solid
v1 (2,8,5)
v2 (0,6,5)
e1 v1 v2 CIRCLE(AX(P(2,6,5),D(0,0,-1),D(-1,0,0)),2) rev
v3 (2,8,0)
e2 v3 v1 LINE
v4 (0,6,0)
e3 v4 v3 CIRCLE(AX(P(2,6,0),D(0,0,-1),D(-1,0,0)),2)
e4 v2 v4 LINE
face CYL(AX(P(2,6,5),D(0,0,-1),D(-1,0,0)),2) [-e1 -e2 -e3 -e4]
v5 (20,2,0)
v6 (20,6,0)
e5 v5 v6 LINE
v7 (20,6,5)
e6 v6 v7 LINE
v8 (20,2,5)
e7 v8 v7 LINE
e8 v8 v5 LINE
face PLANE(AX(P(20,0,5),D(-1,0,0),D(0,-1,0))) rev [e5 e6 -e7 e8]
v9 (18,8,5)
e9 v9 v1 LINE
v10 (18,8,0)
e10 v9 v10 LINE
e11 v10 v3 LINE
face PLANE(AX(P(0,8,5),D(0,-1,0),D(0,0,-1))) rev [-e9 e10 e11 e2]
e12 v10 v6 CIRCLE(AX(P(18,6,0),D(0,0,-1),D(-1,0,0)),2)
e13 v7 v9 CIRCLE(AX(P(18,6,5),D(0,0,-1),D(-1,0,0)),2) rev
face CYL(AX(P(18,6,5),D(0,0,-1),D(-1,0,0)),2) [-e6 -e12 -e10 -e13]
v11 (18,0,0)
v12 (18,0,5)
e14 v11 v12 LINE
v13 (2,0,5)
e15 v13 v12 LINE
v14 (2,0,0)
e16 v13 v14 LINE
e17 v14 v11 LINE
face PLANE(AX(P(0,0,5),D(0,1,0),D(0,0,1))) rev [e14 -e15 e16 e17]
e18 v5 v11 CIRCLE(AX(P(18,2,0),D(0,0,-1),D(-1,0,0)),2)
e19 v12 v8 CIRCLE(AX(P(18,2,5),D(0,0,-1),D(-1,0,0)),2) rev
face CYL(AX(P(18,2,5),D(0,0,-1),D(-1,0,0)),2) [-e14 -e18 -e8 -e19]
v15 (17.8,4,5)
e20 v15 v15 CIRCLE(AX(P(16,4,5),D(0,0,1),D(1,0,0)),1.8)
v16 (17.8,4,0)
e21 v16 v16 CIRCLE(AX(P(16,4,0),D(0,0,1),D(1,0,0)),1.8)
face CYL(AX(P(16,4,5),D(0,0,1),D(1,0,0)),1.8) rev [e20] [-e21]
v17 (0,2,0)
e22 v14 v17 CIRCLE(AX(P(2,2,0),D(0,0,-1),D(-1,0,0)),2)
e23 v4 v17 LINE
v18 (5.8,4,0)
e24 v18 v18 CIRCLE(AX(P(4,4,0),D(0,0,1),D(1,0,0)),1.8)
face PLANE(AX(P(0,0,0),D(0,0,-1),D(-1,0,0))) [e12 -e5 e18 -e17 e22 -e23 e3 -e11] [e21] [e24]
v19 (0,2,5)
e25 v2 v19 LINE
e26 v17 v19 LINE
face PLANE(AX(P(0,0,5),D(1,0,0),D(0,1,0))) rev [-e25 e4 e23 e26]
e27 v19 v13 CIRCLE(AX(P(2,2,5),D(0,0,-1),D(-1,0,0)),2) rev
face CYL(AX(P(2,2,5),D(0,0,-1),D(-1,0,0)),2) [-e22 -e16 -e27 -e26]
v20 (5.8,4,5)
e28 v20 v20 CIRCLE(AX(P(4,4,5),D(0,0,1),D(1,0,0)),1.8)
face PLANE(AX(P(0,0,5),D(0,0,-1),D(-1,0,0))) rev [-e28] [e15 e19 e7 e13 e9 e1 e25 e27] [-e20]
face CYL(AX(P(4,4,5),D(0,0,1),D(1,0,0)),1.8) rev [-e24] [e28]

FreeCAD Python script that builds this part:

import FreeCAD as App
import Part
import Sketcher
from FreeCAD import Vector


def edges_at(feature, points):
    """Names of the edges that pass closest to the given points."""
    edges = feature.Shape.Edges
    near = lambda p: min(range(len(edges)), key=lambda i: edges[i].distToShape(Part.Vertex(*p))[0])
    return sorted({f"Edge{near(p) + 1}" for p in points})

doc = App.newDocument("Part")
body = doc.addObject("PartDesign::Body", "Body")

# Sketch on XY plane
sketch1 = body.newObject("Sketcher::SketchObject", "Sketch")
sketch1.AttachmentSupport = (doc.getObject("XY_Plane"), [""])
sketch1.MapMode = "FlatFace"
sketch1.addGeometry([
    Part.LineSegment(Vector(0, 8, 0), Vector(0, 0, 0)),
    Part.LineSegment(Vector(0, 0, 0), Vector(20, 0, 0)),
    Part.LineSegment(Vector(20, 0, 0), Vector(20, 8, 0)),
    Part.LineSegment(Vector(20, 8, 0), Vector(0, 8, 0)),
], False)
sketch1.addConstraint([
    Sketcher.Constraint("Coincident", 0, 2, 1, 1),
    Sketcher.Constraint("Coincident", 1, 2, 2, 1),
    Sketcher.Constraint("Coincident", 2, 2, 3, 1),
    Sketcher.Constraint("Coincident", 3, 2, 0, 1),
    Sketcher.Constraint("Vertical", 0),
    Sketcher.Constraint("Horizontal", 1),
    Sketcher.Constraint("Vertical", 2),
    Sketcher.Constraint("Horizontal", 3),
    Sketcher.Constraint("Coincident", 0, 2, -1, 1),
    Sketcher.Constraint("DistanceX", 1, 1, 1, 2, 20.0),
    Sketcher.Constraint("DistanceY", 0, 2, 0, 1, 8.0),
])
pad1 = body.newObject("PartDesign::Pad", "Pad")
pad1.Profile = sketch1
pad1.Length = 5

# Sketch on XY plane
sketch2 = body.newObject("Sketcher::SketchObject", "Sketch001")
sketch2.AttachmentSupport = (doc.getObject("XY_Plane"), [""])
sketch2.MapMode = "FlatFace"
sketch2.AttachmentOffset = App.Placement(Vector(0, 0, 5), App.Rotation())
sketch2.addGeometry([
    Part.Circle(Vector(4, 4, 0), Vector(0, 0, 1), 1.8),
    Part.Circle(Vector(16, 4, 0), Vector(0, 0, 1), 1.8),
], False)
sketch2.addConstraint([
    Sketcher.Constraint("Equal", 0, 1),
    Sketcher.Constraint("Horizontal", 0, 3, 1, 3),
    Sketcher.Constraint("Diameter", 0, 3.6),
    Sketcher.Constraint("DistanceX", -1, 1, 0, 3, 4.0),
    Sketcher.Constraint("DistanceY", -1, 1, 0, 3, 4.0),
    Sketcher.Constraint("DistanceX", -1, 1, 1, 3, 16.0),
])
doc.recompute()
hole = body.newObject("PartDesign::Hole", "Hole")
hole.Profile = sketch2
hole.ThreadType = "None"
hole.Diameter = 3.6
hole.DepthType = "ThroughAll"
doc.recompute()

fillet = body.newObject("PartDesign::Fillet", "Fillet")
fillet.Base = (hole, edges_at(hole, [
    (0, 8, 2.5),
    (20, 8, 2.5),
    (20, 0, 2.5),
    (0, 0, 2.5),
]))
fillet.Radius = 2

doc.recompute()
